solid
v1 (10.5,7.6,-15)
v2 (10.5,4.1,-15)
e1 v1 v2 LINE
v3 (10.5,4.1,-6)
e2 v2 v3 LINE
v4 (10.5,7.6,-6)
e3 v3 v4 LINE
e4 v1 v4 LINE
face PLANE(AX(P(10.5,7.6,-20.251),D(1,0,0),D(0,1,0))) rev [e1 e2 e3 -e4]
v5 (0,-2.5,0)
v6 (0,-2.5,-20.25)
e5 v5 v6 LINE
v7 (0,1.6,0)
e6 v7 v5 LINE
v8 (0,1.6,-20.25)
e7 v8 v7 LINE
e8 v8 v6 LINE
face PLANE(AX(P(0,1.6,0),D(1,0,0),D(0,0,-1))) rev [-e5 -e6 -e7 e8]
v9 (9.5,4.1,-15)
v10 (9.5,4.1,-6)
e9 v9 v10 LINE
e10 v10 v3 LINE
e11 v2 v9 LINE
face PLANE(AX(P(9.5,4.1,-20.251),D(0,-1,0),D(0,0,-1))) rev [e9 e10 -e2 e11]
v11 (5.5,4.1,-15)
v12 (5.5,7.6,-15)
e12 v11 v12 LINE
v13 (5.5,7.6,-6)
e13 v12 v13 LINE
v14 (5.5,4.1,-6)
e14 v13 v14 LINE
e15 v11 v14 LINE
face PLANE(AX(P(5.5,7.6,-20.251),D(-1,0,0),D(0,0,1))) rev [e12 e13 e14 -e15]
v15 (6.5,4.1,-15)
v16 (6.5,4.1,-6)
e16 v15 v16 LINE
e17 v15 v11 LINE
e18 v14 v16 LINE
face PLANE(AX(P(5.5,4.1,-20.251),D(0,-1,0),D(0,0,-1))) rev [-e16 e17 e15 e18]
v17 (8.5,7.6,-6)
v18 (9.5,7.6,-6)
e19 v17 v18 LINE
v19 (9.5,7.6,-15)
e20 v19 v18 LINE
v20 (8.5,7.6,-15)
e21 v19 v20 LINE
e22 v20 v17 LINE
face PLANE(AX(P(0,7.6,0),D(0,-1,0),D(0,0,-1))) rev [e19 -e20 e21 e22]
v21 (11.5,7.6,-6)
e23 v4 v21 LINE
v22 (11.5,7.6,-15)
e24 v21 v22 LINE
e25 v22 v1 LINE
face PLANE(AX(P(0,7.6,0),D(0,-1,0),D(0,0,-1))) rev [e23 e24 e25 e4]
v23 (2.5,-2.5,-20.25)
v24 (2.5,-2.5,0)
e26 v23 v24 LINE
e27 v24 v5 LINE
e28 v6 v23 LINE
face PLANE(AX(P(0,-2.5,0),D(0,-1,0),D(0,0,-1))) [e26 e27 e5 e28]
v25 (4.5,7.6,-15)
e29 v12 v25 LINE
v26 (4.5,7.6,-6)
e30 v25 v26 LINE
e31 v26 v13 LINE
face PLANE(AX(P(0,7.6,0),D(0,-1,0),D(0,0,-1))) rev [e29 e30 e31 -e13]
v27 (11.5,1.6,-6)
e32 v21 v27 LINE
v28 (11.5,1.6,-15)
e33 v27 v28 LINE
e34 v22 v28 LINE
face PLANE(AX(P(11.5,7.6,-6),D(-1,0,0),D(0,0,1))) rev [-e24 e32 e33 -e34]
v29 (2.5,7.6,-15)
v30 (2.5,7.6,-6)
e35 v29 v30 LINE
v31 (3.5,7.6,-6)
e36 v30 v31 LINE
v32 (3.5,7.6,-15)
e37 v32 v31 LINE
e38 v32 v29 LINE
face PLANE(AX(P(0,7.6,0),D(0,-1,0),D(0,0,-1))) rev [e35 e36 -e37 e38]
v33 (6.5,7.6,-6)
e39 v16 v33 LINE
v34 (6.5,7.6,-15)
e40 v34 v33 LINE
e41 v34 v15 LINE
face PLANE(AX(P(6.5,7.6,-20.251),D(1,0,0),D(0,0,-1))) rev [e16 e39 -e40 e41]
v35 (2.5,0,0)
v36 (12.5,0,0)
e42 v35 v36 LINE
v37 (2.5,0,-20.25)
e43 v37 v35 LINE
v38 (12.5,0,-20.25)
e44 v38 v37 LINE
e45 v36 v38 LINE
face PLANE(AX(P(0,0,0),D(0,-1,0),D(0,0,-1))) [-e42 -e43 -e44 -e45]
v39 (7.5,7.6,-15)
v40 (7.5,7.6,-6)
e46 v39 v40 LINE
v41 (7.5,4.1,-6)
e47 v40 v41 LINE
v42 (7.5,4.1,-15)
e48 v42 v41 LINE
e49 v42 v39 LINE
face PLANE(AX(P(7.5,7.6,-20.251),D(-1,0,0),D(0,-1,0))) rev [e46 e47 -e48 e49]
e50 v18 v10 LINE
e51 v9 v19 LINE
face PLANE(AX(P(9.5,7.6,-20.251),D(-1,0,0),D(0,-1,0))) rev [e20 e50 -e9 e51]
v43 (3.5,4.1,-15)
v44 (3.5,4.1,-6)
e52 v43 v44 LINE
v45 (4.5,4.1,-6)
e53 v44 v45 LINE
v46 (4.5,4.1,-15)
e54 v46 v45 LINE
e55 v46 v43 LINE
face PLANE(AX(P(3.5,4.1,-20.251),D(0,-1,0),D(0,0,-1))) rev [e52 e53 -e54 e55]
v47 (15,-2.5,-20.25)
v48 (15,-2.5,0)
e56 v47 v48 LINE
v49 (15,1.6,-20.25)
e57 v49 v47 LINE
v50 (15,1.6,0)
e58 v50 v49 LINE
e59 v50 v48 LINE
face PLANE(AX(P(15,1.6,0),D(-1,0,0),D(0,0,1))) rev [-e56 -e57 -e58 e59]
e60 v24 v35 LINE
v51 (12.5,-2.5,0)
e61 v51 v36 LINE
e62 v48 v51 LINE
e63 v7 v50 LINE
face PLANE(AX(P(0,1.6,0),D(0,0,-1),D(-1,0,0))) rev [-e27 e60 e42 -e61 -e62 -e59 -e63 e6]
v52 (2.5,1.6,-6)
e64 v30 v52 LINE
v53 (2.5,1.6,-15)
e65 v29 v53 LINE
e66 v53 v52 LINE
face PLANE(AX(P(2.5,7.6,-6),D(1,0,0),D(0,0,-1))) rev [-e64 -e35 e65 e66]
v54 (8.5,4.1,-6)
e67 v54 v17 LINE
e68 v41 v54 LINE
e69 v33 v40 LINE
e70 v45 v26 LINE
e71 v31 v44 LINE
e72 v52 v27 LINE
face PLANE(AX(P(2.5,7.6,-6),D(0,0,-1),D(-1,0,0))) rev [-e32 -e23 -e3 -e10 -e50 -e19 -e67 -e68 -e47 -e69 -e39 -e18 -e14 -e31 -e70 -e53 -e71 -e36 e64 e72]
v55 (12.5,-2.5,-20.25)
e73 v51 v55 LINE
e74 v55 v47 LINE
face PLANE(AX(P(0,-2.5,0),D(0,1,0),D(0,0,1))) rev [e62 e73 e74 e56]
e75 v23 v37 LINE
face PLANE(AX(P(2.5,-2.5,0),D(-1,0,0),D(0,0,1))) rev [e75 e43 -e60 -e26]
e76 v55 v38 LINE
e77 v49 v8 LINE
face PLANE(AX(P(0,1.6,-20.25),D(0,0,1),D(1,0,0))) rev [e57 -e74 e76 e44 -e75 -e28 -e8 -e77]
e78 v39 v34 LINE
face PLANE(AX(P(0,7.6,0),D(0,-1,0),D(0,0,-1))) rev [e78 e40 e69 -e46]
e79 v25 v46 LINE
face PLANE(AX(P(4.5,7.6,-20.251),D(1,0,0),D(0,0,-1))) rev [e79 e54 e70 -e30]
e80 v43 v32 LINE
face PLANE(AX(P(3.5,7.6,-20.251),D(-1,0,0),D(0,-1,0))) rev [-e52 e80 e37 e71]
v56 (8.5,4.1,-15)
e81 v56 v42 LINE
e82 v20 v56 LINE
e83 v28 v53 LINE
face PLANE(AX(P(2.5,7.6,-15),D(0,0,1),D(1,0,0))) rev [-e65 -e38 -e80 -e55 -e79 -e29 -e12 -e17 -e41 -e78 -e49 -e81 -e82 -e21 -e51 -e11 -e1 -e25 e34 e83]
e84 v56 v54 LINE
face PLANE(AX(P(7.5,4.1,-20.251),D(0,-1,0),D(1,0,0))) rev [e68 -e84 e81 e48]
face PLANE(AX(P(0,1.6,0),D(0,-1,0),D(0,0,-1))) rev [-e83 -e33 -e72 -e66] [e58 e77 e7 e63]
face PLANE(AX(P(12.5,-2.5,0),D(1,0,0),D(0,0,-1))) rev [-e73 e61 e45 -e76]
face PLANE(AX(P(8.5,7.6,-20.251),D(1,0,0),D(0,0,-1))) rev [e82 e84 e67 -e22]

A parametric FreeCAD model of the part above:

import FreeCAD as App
import Part
import Sketcher
from FreeCAD import Vector
Q = App.Units.Quantity


def add_polygon(sketch, points):
    """Adds a closed chain of lines whose ends are joined by coincident constraints."""
    first, n = sketch.GeometryCount, len(points)
    for a, b in zip(points, points[1:] + points[:1]):
        sketch.addGeometry(Part.LineSegment(App.Vector(*a, 0), App.Vector(*b, 0)), False)
    for i in range(n):
        sketch.addConstraint(Sketcher.Constraint("Coincident", first + i, 2, first + (i + 1) % n, 1))

doc = App.newDocument("Part")
params = doc.addObject("Spreadsheet::Sheet", "Params")
for row, (alias, value) in enumerate([
    ("sketch1_width", "15 mm"),
    ("sketch1_height", "20.25 mm"),
    ("pad1_length", "1.6 mm"),
    ("sketch2_width", "2.5 mm"),
    ("sketch2_height", "20.25 mm"),
    ("pad2_length", "2.5 mm"),
    ("sketch3_width", "9 mm"),
    ("pad3_length", "6 mm"),
    ("sketch4_width", "1 mm"),
    ("sketch4_height", "3.5 mm"),
    ("sketch5_width", "1 mm"),
    ("sketch5_height", "3.5 mm"),
    ("sketch6_width", "1 mm"),
    ("sketch6_height", "3.5 mm"),
    ("sketch7_width", "1 mm"),
    ("sketch7_height", "3.5 mm"),
], start=1):
    params.set(f"A{row}", alias)
    params.set(f"B{row}", "=" + value)
    params.setAlias(f"B{row}", alias)

body = doc.addObject("PartDesign::Body", "Body")

sketch1 = body.newObject("Sketcher::SketchObject", "Sketch")
sketch1.AttachmentSupport = (doc.getObject("XZ_Plane"), [""])
sketch1.MapMode = "FlatFace"
add_polygon(sketch1, [(0, -20), (0, 0), (15, 0), (15, -20)])
sketch1.addConstraint(Sketcher.Constraint("Vertical", 0))
sketch1.addConstraint(Sketcher.Constraint("Horizontal", 1))
sketch1.addConstraint(Sketcher.Constraint("Vertical", 2))
sketch1.addConstraint(Sketcher.Constraint("Horizontal", 3))
sketch1.addConstraint(Sketcher.Constraint("Coincident", 0, 2, -1, 1))
sketch1.addConstraint(Sketcher.Constraint("DistanceX", 1, 1, 1, 2, Q("15 mm")))
sketch1.addConstraint(Sketcher.Constraint("DistanceY", 0, 1, 0, 2, Q("20.25 mm")))
sketch1.setExpression("Constraints[9]", "Params.sketch1_width")
sketch1.setExpression("Constraints[10]", "Params.sketch1_height")
pad1 = body.newObject("PartDesign::Pad", "Pad")
pad1.Profile = sketch1
pad1.setExpression("Length", "Params.pad1_length")
pad1.Reversed = True

sketch2 = body.newObject("Sketcher::SketchObject", "Sketch001")
sketch2.AttachmentSupport = (doc.getObject("XZ_Plane"), [""])
sketch2.MapMode = "FlatFace"
add_polygon(sketch2, [(0, 0), (0, -20.2), (2.5, -20.2), (2.5, 0)])
add_polygon(sketch2, [(12.5, 0), (12.5, -20.2), (15, -20.2), (15, 0)])
sketch2.addConstraint(Sketcher.Constraint("Vertical", 0))
sketch2.addConstraint(Sketcher.Constraint("Horizontal", 1))
sketch2.addConstraint(Sketcher.Constraint("Vertical", 2))
sketch2.addConstraint(Sketcher.Constraint("Horizontal", 3))
sketch2.addConstraint(Sketcher.Constraint("Vertical", 4))
sketch2.addConstraint(Sketcher.Constraint("Horizontal", 5))
sketch2.addConstraint(Sketcher.Constraint("Vertical", 6))
sketch2.addConstraint(Sketcher.Constraint("Horizontal", 7))
sketch2.addConstraint(Sketcher.Constraint("Coincident", 3, 2, -1, 1))
sketch2.addConstraint(Sketcher.Constraint("PointOnObject", 6, 2, -1))
sketch2.addConstraint(Sketcher.Constraint("Horizontal", 1, 2, 4, 2))
sketch2.addConstraint(Sketcher.Constraint("Equal", 3, 5))
sketch2.addConstraint(Sketcher.Constraint("DistanceX", 1, 1, 1, 2, Q("2.5 mm")))
sketch2.addConstraint(Sketcher.Constraint("DistanceX", -1, 1, 5, 2, Q("15 mm")))
sketch2.addConstraint(Sketcher.Constraint("DistanceY", 0, 2, 0, 1, Q("20.25 mm")))
sketch2.setExpression("Constraints[20]", "Params.sketch2_width")
sketch2.setExpression("Constraints[22]", "Params.sketch2_height")
pad2 = body.newObject("PartDesign::Pad", "Pad001")
pad2.Profile = sketch2
pad2.setExpression("Length", "Params.pad2_length")

sketch3 = body.newObject("Sketcher::SketchObject", "Sketch002")
sketch3.AttachmentSupport = (doc.getObject("XZ_Plane"), [""])
sketch3.MapMode = "FlatFace"
sketch3.AttachmentOffset = App.Placement(Vector(0, 0, -1.6), App.Rotation())
add_polygon(sketch3, [(2, -15), (2, -6), (12, -6), (12, -15)])
sketch3.addConstraint(Sketcher.Constraint("Vertical", 0))
sketch3.addConstraint(Sketcher.Constraint("Horizontal", 1))
sketch3.addConstraint(Sketcher.Constraint("Vertical", 2))
sketch3.addConstraint(Sketcher.Constraint("Horizontal", 3))
sketch3.addConstraint(Sketcher.Constraint("Equal", 3, 0))
sketch3.addConstraint(Sketcher.Constraint("DistanceX", 1, 1, 1, 2, Q("9 mm")))
sketch3.addConstraint(Sketcher.Constraint("DistanceY", 0, 2, -1, 1, Q("6 mm")))
sketch3.addConstraint(Sketcher.Constraint("DistanceX", -1, 1, 0, 2, Q("2.5 mm")))
sketch3.setExpression("Constraints[9]", "Params.sketch3_width")
pad3 = body.newObject("PartDesign::Pad", "Pad002")
pad3.Profile = sketch3
pad3.setExpression("Length", "Params.pad3_length")
pad3.Reversed = True

sketch4 = body.newObject("Sketcher::SketchObject", "Sketch003")
sketch4.AttachmentSupport = (doc.getObject("XY_Plane"), [""])
sketch4.MapMode = "FlatFace"
sketch4.AttachmentOffset = App.Placement(Vector(0, 0, -6), App.Rotation())
add_polygon(sketch4, [(3.5, 7.6), (3.5, 4.1), (4.5, 4.1), (4.5, 7.6)])
sketch4.addConstraint(Sketcher.Constraint("Vertical", 0))
sketch4.addConstraint(Sketcher.Constraint("Horizontal", 1))
sketch4.addConstraint(Sketcher.Constraint("Vertical", 2))
sketch4.addConstraint(Sketcher.Constraint("Horizontal", 3))
sketch4.addConstraint(Sketcher.Constraint("DistanceX", 1, 1, 1, 2, Q("1 mm")))
sketch4.addConstraint(Sketcher.Constraint("DistanceY", 0, 2, 0, 1, Q("3.5 mm")))
sketch4.addConstraint(Sketcher.Constraint("DistanceX", -1, 1, 0, 2, Q("3.5 mm")))
sketch4.addConstraint(Sketcher.Constraint("DistanceY", -1, 1, 0, 2, Q("4.1 mm")))
sketch4.setExpression("Constraints[8]", "Params.sketch4_width")
sketch4.setExpression("Constraints[9]", "Params.sketch4_height")
pocket1 = body.newObject("PartDesign::Pocket", "Pocket")
pocket1.Profile = sketch4
pocket1.Type = "UpToFirst"

sketch5 = body.newObject("Sketcher::SketchObject", "Sketch004")
sketch5.AttachmentSupport = (doc.getObject("XY_Plane"), [""])
sketch5.MapMode = "FlatFace"
sketch5.AttachmentOffset = App.Placement(Vector(0, 0, -6), App.Rotation())
add_polygon(sketch5, [(5.5, 7.6), (5.5, 4.1), (6.5, 4.1), (6.5, 7.6)])
sketch5.addConstraint(Sketcher.Constraint("Vertical", 0))
sketch5.addConstraint(Sketcher.Constraint("Horizontal", 1))
sketch5.addConstraint(Sketcher.Constraint("Vertical", 2))
sketch5.addConstraint(Sketcher.Constraint("Horizontal", 3))
sketch5.addConstraint(Sketcher.Constraint("DistanceX", 1, 1, 1, 2, Q("1 mm")))
sketch5.addConstraint(Sketcher.Constraint("DistanceY", 0, 2, 0, 1, Q("3.5 mm")))
sketch5.addConstraint(Sketcher.Constraint("DistanceX", -1, 1, 0, 2, Q("5.5 mm")))
sketch5.addConstraint(Sketcher.Constraint("DistanceY", -1, 1, 0, 2, Q("4.1 mm")))
sketch5.setExpression("Constraints[8]", "Params.sketch5_width")
sketch5.setExpression("Constraints[9]", "Params.sketch5_height")
pocket2 = body.newObject("PartDesign::Pocket", "Pocket001")
pocket2.Profile = sketch5
pocket2.Type = "UpToFirst"

sketch6 = body.newObject("Sketcher::SketchObject", "Sketch005")
sketch6.AttachmentSupport = (doc.getObject("XY_Plane"), [""])
sketch6.MapMode = "FlatFace"
sketch6.AttachmentOffset = App.Placement(Vector(0, 0, -6), App.Rotation())
add_polygon(sketch6, [(7.5, 7.6), (7.5, 4.1), (8.5, 4.1), (8.5, 7.6)])
sketch6.addConstraint(Sketcher.Constraint("Vertical", 0))
sketch6.addConstraint(Sketcher.Constraint("Horizontal", 1))
sketch6.addConstraint(Sketcher.Constraint("Vertical", 2))
sketch6.addConstraint(Sketcher.Constraint("Horizontal", 3))
sketch6.addConstraint(Sketcher.Constraint("DistanceX", 1, 1, 1, 2, Q("1 mm")))
sketch6.addConstraint(Sketcher.Constraint("DistanceY", 0, 2, 0, 1, Q("3.5 mm")))
sketch6.addConstraint(Sketcher.Constraint("DistanceX", -1, 1, 0, 2, Q("7.5 mm")))
sketch6.addConstraint(Sketcher.Constraint("DistanceY", -1, 1, 0, 2, Q("4.1 mm")))
sketch6.setExpression("Constraints[8]", "Params.sketch6_width")
sketch6.setExpression("Constraints[9]", "Params.sketch6_height")
pocket3 = body.newObject("PartDesign::Pocket", "Pocket002")
pocket3.Profile = sketch6
pocket3.Type = "UpToFirst"

sketch7 = body.newObject("Sketcher::SketchObject", "Sketch006")
sketch7.AttachmentSupport = (doc.getObject("XY_Plane"), [""])
sketch7.MapMode = "FlatFace"
sketch7.AttachmentOffset = App.Placement(Vector(0, 0, -6), App.Rotation())
add_polygon(sketch7, [(9.5, 7.6), (9.5, 4.1), (10.5, 4.1), (10.5, 7.6)])
sketch7.addConstraint(Sketcher.Constraint("Vertical", 0))
sketch7.addConstraint(Sketcher.Constraint("Horizontal", 1))
sketch7.addConstraint(Sketcher.Constraint("Vertical", 2))
sketch7.addConstraint(Sketcher.Constraint("Horizontal", 3))
sketch7.addConstraint(Sketcher.Constraint("DistanceX", 1, 1, 1, 2, Q("1 mm")))
sketch7.addConstraint(Sketcher.Constraint("DistanceY", 0, 2, 0, 1, Q("3.5 mm")))
sketch7.addConstraint(Sketcher.Constraint("DistanceX", -1, 1, 0, 2, Q("9.5 mm")))
sketch7.addConstraint(Sketcher.Constraint("DistanceY", -1, 1, 0, 2, Q("4.1 mm")))
sketch7.setExpression("Constraints[8]", "Params.sketch7_width")
sketch7.setExpression("Constraints[9]", "Params.sketch7_height")
pocket4 = body.newObject("PartDesign::Pocket", "Pocket003")
pocket4.Profile = sketch7
pocket4.Type = "UpToFirst"

doc.recompute()
